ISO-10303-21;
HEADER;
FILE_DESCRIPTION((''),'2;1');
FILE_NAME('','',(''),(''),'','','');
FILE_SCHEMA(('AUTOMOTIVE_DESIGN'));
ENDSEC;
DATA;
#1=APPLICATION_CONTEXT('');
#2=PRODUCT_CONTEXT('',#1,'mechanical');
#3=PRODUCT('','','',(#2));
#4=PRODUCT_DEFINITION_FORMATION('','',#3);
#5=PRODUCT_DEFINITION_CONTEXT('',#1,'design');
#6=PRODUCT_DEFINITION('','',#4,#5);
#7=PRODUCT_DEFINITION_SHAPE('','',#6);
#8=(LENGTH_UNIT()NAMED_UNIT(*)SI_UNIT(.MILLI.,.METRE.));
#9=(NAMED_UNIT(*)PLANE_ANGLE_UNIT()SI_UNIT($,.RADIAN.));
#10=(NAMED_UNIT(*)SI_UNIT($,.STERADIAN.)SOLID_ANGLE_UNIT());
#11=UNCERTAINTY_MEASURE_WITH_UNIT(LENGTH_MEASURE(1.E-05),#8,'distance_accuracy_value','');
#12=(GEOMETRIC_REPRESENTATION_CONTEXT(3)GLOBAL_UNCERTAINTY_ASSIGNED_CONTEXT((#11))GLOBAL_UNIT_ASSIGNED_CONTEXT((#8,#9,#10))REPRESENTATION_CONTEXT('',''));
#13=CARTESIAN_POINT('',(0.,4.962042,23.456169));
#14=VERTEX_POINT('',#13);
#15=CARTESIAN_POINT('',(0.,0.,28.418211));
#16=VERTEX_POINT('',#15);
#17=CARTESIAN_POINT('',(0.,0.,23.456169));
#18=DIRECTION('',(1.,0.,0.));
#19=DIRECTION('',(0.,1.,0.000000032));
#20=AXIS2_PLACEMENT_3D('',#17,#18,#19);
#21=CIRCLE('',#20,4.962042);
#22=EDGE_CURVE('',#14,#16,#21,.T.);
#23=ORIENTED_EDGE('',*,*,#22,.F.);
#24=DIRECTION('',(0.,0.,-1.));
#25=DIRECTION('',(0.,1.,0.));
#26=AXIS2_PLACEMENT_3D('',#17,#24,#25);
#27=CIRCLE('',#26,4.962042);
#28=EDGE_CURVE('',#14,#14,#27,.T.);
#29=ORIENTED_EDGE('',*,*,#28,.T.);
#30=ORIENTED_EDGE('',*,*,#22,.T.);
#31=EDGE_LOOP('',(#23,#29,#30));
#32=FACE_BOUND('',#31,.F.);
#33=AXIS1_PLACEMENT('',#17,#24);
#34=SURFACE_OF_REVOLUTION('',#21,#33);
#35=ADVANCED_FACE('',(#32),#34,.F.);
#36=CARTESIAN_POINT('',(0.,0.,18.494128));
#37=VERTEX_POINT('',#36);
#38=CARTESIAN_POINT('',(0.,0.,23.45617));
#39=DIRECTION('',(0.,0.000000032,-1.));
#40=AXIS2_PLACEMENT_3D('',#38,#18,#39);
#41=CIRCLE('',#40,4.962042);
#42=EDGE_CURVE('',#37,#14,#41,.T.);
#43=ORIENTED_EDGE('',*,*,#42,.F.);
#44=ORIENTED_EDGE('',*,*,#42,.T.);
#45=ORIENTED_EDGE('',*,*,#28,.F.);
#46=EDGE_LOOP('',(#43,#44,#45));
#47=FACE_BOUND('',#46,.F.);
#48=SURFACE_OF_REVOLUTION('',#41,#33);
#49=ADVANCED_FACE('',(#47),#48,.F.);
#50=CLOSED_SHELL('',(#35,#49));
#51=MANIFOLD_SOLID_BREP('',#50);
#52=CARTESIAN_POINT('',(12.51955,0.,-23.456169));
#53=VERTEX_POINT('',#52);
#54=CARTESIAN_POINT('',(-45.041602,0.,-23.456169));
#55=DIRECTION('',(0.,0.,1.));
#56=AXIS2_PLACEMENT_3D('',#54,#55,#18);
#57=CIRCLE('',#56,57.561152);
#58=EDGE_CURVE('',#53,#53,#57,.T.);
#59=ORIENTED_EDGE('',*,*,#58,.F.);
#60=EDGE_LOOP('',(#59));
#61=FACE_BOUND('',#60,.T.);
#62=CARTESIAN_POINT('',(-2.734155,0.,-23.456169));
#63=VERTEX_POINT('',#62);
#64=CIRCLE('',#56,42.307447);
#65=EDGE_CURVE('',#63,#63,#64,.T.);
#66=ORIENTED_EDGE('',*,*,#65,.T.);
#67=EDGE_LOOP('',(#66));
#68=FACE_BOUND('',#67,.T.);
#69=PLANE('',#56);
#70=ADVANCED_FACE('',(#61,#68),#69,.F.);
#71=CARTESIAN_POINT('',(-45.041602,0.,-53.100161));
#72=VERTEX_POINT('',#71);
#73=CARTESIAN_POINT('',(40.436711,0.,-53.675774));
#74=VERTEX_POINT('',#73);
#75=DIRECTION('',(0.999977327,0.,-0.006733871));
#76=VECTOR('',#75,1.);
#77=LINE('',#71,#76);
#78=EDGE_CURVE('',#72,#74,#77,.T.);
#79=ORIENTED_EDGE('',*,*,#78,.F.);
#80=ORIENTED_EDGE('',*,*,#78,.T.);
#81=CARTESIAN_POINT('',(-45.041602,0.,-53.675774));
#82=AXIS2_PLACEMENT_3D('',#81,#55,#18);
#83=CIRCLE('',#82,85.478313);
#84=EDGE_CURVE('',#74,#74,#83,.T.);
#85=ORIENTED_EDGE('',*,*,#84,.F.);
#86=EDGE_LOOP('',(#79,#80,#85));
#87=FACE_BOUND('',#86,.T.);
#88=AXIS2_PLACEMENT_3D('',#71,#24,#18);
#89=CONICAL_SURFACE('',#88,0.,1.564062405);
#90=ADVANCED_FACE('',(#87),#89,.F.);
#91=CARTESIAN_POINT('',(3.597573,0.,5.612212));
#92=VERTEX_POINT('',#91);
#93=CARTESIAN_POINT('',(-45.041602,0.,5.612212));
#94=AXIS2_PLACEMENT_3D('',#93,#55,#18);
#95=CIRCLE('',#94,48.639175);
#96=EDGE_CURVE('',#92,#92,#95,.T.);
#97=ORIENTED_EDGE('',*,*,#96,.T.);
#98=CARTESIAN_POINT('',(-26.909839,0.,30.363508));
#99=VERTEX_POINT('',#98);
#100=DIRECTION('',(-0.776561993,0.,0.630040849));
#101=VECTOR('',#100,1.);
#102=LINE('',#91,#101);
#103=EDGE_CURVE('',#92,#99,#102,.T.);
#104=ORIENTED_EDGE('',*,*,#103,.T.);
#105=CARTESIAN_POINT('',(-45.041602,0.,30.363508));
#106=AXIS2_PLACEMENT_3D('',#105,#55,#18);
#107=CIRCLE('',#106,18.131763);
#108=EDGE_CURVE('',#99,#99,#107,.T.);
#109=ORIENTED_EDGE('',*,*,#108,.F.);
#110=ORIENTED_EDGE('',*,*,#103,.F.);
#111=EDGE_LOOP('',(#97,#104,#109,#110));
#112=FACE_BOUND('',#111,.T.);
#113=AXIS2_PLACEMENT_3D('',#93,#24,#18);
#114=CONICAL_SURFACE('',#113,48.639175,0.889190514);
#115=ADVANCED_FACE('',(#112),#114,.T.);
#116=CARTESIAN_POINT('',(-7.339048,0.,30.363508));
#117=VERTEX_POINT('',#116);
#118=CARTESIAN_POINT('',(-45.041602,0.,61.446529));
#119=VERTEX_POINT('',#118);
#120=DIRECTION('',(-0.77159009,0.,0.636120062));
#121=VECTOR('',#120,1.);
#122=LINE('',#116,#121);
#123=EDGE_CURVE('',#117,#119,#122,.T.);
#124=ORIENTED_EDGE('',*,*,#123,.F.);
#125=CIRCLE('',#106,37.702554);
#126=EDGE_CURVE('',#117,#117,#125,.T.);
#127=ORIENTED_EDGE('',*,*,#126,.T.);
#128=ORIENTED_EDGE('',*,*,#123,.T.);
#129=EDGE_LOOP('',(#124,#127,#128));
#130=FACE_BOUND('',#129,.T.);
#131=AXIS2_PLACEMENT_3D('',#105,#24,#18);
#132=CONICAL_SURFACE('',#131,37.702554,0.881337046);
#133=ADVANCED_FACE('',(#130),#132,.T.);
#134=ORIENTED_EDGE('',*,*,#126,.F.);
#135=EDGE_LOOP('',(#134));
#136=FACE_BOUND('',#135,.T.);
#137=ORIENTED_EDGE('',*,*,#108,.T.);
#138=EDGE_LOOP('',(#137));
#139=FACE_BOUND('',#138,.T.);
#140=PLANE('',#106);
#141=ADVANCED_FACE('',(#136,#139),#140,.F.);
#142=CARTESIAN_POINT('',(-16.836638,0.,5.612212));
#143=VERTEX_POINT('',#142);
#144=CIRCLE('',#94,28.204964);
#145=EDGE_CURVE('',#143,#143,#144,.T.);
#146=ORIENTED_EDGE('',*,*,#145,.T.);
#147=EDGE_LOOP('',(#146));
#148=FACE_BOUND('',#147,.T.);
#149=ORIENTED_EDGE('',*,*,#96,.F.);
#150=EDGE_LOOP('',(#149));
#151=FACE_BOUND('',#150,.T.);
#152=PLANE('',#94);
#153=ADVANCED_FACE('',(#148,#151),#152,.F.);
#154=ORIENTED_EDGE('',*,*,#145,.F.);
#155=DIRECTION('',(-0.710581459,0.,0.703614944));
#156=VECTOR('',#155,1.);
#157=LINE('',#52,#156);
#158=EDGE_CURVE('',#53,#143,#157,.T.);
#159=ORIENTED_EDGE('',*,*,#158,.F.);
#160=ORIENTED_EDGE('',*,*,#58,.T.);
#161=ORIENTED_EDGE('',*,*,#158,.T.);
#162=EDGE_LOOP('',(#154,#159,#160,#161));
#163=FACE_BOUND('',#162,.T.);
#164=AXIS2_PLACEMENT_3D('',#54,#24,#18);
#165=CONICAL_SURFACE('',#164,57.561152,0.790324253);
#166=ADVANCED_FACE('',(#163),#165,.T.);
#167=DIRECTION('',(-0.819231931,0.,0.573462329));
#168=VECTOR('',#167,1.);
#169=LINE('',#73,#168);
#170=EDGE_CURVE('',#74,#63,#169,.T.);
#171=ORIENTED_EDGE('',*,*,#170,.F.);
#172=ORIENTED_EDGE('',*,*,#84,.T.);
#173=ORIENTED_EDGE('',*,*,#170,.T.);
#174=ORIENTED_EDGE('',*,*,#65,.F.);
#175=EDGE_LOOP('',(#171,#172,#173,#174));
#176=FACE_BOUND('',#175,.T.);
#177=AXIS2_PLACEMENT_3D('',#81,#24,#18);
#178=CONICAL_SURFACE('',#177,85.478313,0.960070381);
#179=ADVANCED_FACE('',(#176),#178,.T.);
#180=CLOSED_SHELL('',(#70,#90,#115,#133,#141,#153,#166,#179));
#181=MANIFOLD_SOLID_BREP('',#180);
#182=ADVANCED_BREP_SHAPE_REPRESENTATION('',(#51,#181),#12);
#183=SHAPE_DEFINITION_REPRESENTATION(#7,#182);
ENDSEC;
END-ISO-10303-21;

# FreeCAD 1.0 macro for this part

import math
import FreeCAD as App
import Part
import Sketcher
from FreeCAD import Vector


def add_polygon(sketch, points):
    """Adds a closed chain of lines whose ends are joined by coincident constraints."""
    first, n = sketch.GeometryCount, len(points)
    for a, b in zip(points, points[1:] + points[:1]):
        sketch.addGeometry(Part.LineSegment(App.Vector(*a, 0), App.Vector(*b, 0)), False)
    for i in range(n):
        sketch.addConstraint(Sketcher.Constraint("Coincident", first + i, 2, first + (i + 1) % n, 1))

doc = App.newDocument("Part")
body = doc.addObject("PartDesign::Body", "Body")

# Sketch on XZ plane
sketch1 = body.newObject("Sketcher::SketchObject", "Sketch")
sketch1.AttachmentSupport = (doc.getObject("XZ_Plane"), [""])
sketch1.MapMode = "FlatFace"
add_polygon(sketch1, [(-45, 61), (-45, -53), (40, -54), (-3, -23), (13, -23), (-17, 6), (4, 6), (-27, 30), (-7, 30)])  # lines 0-8
sketch1.addGeometry(Part.LineSegment(Vector(-45, -54, 0), Vector(-45, 61, 0)), True)  # axis
sketch1.addConstraint([
    Sketcher.Constraint("Vertical", 0),
    Sketcher.Constraint("Horizontal", 3),
    Sketcher.Constraint("Horizontal", 5),
    Sketcher.Constraint("Horizontal", 7),
    Sketcher.Constraint("Vertical", 9),
    Sketcher.Constraint("Coincident", 9, 2, 8, 2),
    Sketcher.Constraint("Horizontal", 1, 2, 9, 1),
    Sketcher.Constraint("DistanceX", 5, 1, 5, 2, 20.434211),
    Sketcher.Constraint("DistanceX", 7, 1, 7, 2, 19.570791),
    Sketcher.Constraint("DistanceY", 0, 2, 0, 1, 114.54669),
    Sketcher.Constraint("DistanceX", 0, 2, -1, 1, 45.041602),
    Sketcher.Constraint("DistanceX", 6, 2, 4, 2, 10.073201),
    Sketcher.Constraint("DistanceX", 7, 2, 3, 2, 19.858598),
    Sketcher.Constraint("DistanceY", 2, 2, 8, 2, 84.902698),
    Sketcher.Constraint("Distance", 1, 85.480251),
    Sketcher.Constraint("Distance", 4, 41.31291),
    Sketcher.Constraint("Distance", 8, 48.86345),
    Sketcher.Constraint("DistanceX", 3, 1, 3, 2, 15.253705),
    Sketcher.Constraint("DistanceY", 9, 1, 9, 2, 115.122303),
    Sketcher.Constraint("DistanceY", 0, 2, -1, 1, 53.100161),
    Sketcher.Constraint("DistanceX", -1, 1, 3, 2, 12.51955),
])
revolution = body.newObject("PartDesign::Revolution", "Revolution")
revolution.Profile = sketch1
revolution.ReferenceAxis = (sketch1, ["Axis0"])
revolution.Angle = 360
body2 = doc.addObject("PartDesign::Body", "Body001")

# Sketch on YZ plane
sketch2 = body2.newObject("Sketcher::SketchObject", "Sketch001")
sketch2.AttachmentSupport = (doc.getObject("YZ_Plane001"), [""])
sketch2.MapMode = "FlatFace"
sketch2.addGeometry([
    Part.ArcOfCircle(Part.Circle(Vector(0, 23.5, 0), Vector(0, 0, 1), 5), math.radians(-90), math.radians(0)),
    Part.ArcOfCircle(Part.Circle(Vector(0, 23.5, 0), Vector(0, 0, 1), 5), math.radians(0), math.radians(90)),
    Part.LineSegment(Vector(0, 28.4, 0), Vector(0, 18.5, 0)),
], False)
sketch2.addConstraint([
    Sketcher.Constraint("Tangent", 0, 2, 1, 1),
    Sketcher.Constraint("Coincident", 1, 2, 2, 1),
    Sketcher.Constraint("Coincident", 2, 2, 0, 1),
    Sketcher.Constraint("Vertical", 2),
    Sketcher.Constraint("Equal", 0, 1),
    Sketcher.Constraint("PointOnObject", 0, 3, -2),
    Sketcher.Constraint("PointOnObject", 1, 2, -2),
    Sketcher.Constraint("Horizontal", 1, 3, 0, 2),
    Sketcher.Constraint("Radius", 0, 4.962042),
    Sketcher.Constraint("DistanceY", -1, 1, 0, 3, 23.45617),
])
revolution2 = body2.newObject("PartDesign::Revolution", "Revolution001")
revolution2.Profile = sketch2
revolution2.ReferenceAxis = (sketch2, ["V_Axis"])
revolution2.Angle = 360

doc.recompute()
